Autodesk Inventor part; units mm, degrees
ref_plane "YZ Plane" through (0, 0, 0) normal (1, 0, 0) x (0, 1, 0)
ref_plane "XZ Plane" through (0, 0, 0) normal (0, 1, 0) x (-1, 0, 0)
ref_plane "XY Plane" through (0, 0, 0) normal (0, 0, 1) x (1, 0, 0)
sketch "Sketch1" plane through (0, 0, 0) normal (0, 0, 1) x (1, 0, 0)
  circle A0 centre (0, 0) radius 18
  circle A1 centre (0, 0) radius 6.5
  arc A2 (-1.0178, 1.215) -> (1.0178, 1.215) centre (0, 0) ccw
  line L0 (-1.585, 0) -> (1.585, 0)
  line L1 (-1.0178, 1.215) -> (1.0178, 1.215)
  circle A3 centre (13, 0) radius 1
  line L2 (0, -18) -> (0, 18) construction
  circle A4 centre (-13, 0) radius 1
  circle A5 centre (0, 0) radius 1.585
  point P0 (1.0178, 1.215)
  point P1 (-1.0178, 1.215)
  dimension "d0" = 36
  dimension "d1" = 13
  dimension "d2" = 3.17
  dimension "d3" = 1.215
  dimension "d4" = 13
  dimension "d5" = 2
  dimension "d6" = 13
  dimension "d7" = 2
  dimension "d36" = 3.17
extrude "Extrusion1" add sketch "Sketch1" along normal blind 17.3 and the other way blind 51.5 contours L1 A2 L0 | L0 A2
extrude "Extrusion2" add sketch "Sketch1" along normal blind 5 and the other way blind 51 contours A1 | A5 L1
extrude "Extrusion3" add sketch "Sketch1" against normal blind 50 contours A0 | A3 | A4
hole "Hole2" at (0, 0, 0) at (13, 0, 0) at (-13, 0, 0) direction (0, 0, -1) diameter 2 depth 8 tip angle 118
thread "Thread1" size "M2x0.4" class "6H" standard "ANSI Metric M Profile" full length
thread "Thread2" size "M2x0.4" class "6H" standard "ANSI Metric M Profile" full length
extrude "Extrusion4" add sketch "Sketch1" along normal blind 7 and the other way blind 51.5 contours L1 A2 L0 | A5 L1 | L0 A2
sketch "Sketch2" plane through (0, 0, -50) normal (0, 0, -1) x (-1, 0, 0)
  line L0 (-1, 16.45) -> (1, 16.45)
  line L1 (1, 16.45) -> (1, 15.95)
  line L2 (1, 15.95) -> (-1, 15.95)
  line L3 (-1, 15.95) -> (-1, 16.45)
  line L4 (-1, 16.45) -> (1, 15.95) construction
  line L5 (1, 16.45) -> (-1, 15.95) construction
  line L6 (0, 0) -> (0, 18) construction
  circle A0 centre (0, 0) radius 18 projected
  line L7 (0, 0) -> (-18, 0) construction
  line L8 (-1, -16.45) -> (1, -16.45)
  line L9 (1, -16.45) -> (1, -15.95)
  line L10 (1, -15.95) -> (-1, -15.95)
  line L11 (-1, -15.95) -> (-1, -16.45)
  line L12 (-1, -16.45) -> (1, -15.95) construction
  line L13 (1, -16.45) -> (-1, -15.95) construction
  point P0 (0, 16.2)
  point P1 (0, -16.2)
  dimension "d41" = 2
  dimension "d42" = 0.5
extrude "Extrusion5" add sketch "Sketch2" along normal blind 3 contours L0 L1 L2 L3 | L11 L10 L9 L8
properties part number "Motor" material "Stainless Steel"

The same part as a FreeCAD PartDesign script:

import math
import FreeCAD as App
import Part
import Sketcher

doc = App.newDocument("Part")
body = doc.addObject("PartDesign::Body", "Body")

# Sketch on XY plane
sketch1 = body.newObject("Sketcher::SketchObject", "Sketch")
sketch1.AttachmentSupport = (doc.getObject("XY_Plane"), [""])
sketch1.MapMode = "FlatFace"
sketch1.addGeometry(Part.LineSegment(App.Vector(1, 1.2, 0), App.Vector(-1, 1.2, 0)), False)
sketch1.addGeometry(Part.ArcOfCircle(Part.Circle(App.Vector(0, 0, 0), App.Vector(0, 0, 1), 1.6), math.radians(130), math.radians(410)), False)
sketch1.addConstraint(Sketcher.Constraint("Coincident", 0, 1, 1, 2))
sketch1.addConstraint(Sketcher.Constraint("Coincident", 1, 1, 0, 2))
sketch1.addConstraint(Sketcher.Constraint("Horizontal", 0))
sketch1.addConstraint(Sketcher.Constraint("Coincident", 1, 3, -1, 1))
sketch1.addConstraint(Sketcher.Constraint("Radius", 1, 1.585))
sketch1.addConstraint(Sketcher.Constraint("DistanceY", -1, 1, 0, 1, 1.215))
pad1 = body.newObject("PartDesign::Pad", "Pad")
pad1.Profile = sketch1
pad1.Type = "TwoLengths"
pad1.Length = 17.3
pad1.Length2 = 51.5

# Sketch on XY plane
sketch2 = body.newObject("Sketcher::SketchObject", "Sketch001")
sketch2.AttachmentSupport = (doc.getObject("XY_Plane"), [""])
sketch2.MapMode = "FlatFace"
sketch2.addGeometry(Part.Circle(App.Vector(0, 0, 0), App.Vector(0, 0, 1), 6.5), False)
sketch2.addGeometry(Part.LineSegment(App.Vector(-1, 1.2, 0), App.Vector(1, 1.2, 0)), False)
sketch2.addGeometry(Part.ArcOfCircle(Part.Circle(App.Vector(0, 0, 0), App.Vector(0, 0, 1), 1.6), math.radians(130), math.radians(410)), False)
sketch2.addConstraint(Sketcher.Constraint("Coincident", 1, 1, 2, 1))
sketch2.addConstraint(Sketcher.Constraint("Coincident", 2, 2, 1, 2))
sketch2.addConstraint(Sketcher.Constraint("Horizontal", 1))
sketch2.addConstraint(Sketcher.Constraint("Coincident", 0, 3, -1, 1))
sketch2.addConstraint(Sketcher.Constraint("Coincident", 2, 3, -1, 1))
sketch2.addConstraint(Sketcher.Constraint("Diameter", 0, 13.0))
sketch2.addConstraint(Sketcher.Constraint("Radius", 2, 1.585))
sketch2.addConstraint(Sketcher.Constraint("DistanceY", -1, 1, 1, 1, 1.215))
pad2 = body.newObject("PartDesign::Pad", "Pad001")
pad2.Profile = sketch2
pad2.Type = "TwoLengths"
pad2.Length = 5
pad2.Length2 = 51

# Sketch on XY plane
sketch3 = body.newObject("Sketcher::SketchObject", "Sketch002")
sketch3.AttachmentSupport = (doc.getObject("XY_Plane"), [""])
sketch3.MapMode = "FlatFace"
sketch3.addGeometry(Part.Circle(App.Vector(0, 0, 0), App.Vector(0, 0, 1), 18), False)
sketch3.addGeometry(Part.Circle(App.Vector(0, 0, 0), App.Vector(0, 0, 1), 6), False)
sketch3.addConstraint(Sketcher.Constraint("Coincident", 0, 3, -1, 1))
sketch3.addConstraint(Sketcher.Constraint("Coincident", 1, 3, -1, 1))
sketch3.addConstraint(Sketcher.Constraint("Diameter", 0, 36.0))
sketch3.addConstraint(Sketcher.Constraint("Diameter", 1, 13.0))
pad3 = body.newObject("PartDesign::Pad", "Pad002")
pad3.Profile = sketch3
pad3.Length = 50
pad3.Reversed = True

# Sketch on XY plane
sketch4 = body.newObject("Sketcher::SketchObject", "Sketch003")
sketch4.AttachmentSupport = (doc.getObject("XY_Plane"), [""])
sketch4.MapMode = "FlatFace"
sketch4.addGeometry(Part.Circle(App.Vector(0, 0, 0), App.Vector(0, 0, 1), 1), False)
sketch4.addGeometry(Part.Circle(App.Vector(13, 0, 0), App.Vector(0, 0, 1), 1), False)
sketch4.addGeometry(Part.Circle(App.Vector(-13, 0, 0), App.Vector(0, 0, 1), 1), False)
sketch4.addConstraint(Sketcher.Constraint("Coincident", 0, 3, -1, 1))
sketch4.addConstraint(Sketcher.Constraint("Equal", 0, 1))
sketch4.addConstraint(Sketcher.Constraint("Equal", 1, 2))
sketch4.addConstraint(Sketcher.Constraint("Symmetric", 1, 3, 2, 3, -1, 1))
sketch4.addConstraint(Sketcher.Constraint("PointOnObject", 1, 3, -1))
sketch4.addConstraint(Sketcher.Constraint("Diameter", 0, 2.0))
sketch4.addConstraint(Sketcher.Constraint("DistanceX", -1, 1, 1, 3, 13.0))
doc.recompute()
hole = body.newObject("PartDesign::Hole", "Hole")
hole.Profile = sketch4
hole.ThreadType = "None"
hole.Diameter = 2
hole.DepthType = "Dimension"
hole.Depth = 8
hole.DrillPoint = "Angled"
hole.DrillPointAngle = 118

# Sketch on XY plane
sketch5 = body.newObject("Sketcher::SketchObject", "Sketch004")
sketch5.AttachmentSupport = (doc.getObject("XY_Plane"), [""])
sketch5.MapMode = "FlatFace"
sketch5.addGeometry(Part.Circle(App.Vector(0, 0, 0), App.Vector(0, 0, 1), 1.6), False)
sketch5.addConstraint(Sketcher.Constraint("Coincident", 0, 3, -1, 1))
sketch5.addConstraint(Sketcher.Constraint("Diameter", 0, 3.17))
pad4 = body.newObject("PartDesign::Pad", "Pad003")
pad4.Profile = sketch5
pad4.Type = "TwoLengths"
pad4.Length = 7
pad4.Length2 = 51.5

# Sketch on XY plane
sketch6 = body.newObject("Sketcher::SketchObject", "Sketch005")
sketch6.AttachmentSupport = (doc.getObject("XY_Plane"), [""])
sketch6.MapMode = "FlatFace"
sketch6.AttachmentOffset = App.Placement(App.Vector(0, 0, -50), App.Rotation())
sketch6.addGeometry(Part.LineSegment(App.Vector(-1, 16.4, 0), App.Vector(1, 16.4, 0)), False)
sketch6.addGeometry(Part.LineSegment(App.Vector(1, 16.4, 0), App.Vector(1, 15.9, 0)), False)
sketch6.addGeometry(Part.LineSegment(App.Vector(1, 15.9, 0), App.Vector(-1, 15.9, 0)), False)
sketch6.addGeometry(Part.LineSegment(App.Vector(-1, 15.9, 0), App.Vector(-1, 16.4, 0)), False)
sketch6.addGeometry(Part.LineSegment(App.Vector(1, -15.9, 0), App.Vector(1, -16.4, 0)), False)
sketch6.addGeometry(Part.LineSegment(App.Vector(1, -16.4, 0), App.Vector(-1, -16.4, 0)), False)
sketch6.addGeometry(Part.LineSegment(App.Vector(-1, -16.4, 0), App.Vector(-1, -15.9, 0)), False)
sketch6.addGeometry(Part.LineSegment(App.Vector(-1, -15.9, 0), App.Vector(1, -15.9, 0)), False)
sketch6.addConstraint(Sketcher.Constraint("Coincident", 0, 2, 1, 1))
sketch6.addConstraint(Sketcher.Constraint("Coincident", 1, 2, 2, 1))
sketch6.addConstraint(Sketcher.Constraint("Coincident", 2, 2, 3, 1))
sketch6.addConstraint(Sketcher.Constraint("Coincident", 3, 2, 0, 1))
sketch6.addConstraint(Sketcher.Constraint("Coincident", 4, 2, 5, 1))
sketch6.addConstraint(Sketcher.Constraint("Coincident", 5, 2, 6, 1))
sketch6.addConstraint(Sketcher.Constraint("Coincident", 6, 2, 7, 1))
sketch6.addConstraint(Sketcher.Constraint("Coincident", 7, 2, 4, 1))
sketch6.addConstraint(Sketcher.Constraint("Horizontal", 0))
sketch6.addConstraint(Sketcher.Constraint("Vertical", 1))
sketch6.addConstraint(Sketcher.Constraint("Horizontal", 2))
sketch6.addConstraint(Sketcher.Constraint("Vertical", 3))
sketch6.addConstraint(Sketcher.Constraint("Vertical", 4))
sketch6.addConstraint(Sketcher.Constraint("Horizontal", 5))
sketch6.addConstraint(Sketcher.Constraint("Vertical", 6))
sketch6.addConstraint(Sketcher.Constraint("Horizontal", 7))
sketch6.addConstraint(Sketcher.Constraint("Symmetric", 3, 2, 4, 2, -1, 1))
sketch6.addConstraint(Sketcher.Constraint("Symmetric", 1, 2, 6, 2, -1, 1))
sketch6.addConstraint(Sketcher.Constraint("Vertical", 1, 2, 4, 2))
sketch6.addConstraint(Sketcher.Constraint("DistanceX", 0, 1, 0, 2, 2.0))
sketch6.addConstraint(Sketcher.Constraint("DistanceY", 1, 2, 1, 1, 0.5))
sketch6.addConstraint(Sketcher.Constraint("DistanceY", 4, 2, 1, 2, 32.4))
pad5 = body.newObject("PartDesign::Pad", "Pad004")
pad5.Profile = sketch6
pad5.Length = 3
pad5.Reversed = True

doc.recompute()
